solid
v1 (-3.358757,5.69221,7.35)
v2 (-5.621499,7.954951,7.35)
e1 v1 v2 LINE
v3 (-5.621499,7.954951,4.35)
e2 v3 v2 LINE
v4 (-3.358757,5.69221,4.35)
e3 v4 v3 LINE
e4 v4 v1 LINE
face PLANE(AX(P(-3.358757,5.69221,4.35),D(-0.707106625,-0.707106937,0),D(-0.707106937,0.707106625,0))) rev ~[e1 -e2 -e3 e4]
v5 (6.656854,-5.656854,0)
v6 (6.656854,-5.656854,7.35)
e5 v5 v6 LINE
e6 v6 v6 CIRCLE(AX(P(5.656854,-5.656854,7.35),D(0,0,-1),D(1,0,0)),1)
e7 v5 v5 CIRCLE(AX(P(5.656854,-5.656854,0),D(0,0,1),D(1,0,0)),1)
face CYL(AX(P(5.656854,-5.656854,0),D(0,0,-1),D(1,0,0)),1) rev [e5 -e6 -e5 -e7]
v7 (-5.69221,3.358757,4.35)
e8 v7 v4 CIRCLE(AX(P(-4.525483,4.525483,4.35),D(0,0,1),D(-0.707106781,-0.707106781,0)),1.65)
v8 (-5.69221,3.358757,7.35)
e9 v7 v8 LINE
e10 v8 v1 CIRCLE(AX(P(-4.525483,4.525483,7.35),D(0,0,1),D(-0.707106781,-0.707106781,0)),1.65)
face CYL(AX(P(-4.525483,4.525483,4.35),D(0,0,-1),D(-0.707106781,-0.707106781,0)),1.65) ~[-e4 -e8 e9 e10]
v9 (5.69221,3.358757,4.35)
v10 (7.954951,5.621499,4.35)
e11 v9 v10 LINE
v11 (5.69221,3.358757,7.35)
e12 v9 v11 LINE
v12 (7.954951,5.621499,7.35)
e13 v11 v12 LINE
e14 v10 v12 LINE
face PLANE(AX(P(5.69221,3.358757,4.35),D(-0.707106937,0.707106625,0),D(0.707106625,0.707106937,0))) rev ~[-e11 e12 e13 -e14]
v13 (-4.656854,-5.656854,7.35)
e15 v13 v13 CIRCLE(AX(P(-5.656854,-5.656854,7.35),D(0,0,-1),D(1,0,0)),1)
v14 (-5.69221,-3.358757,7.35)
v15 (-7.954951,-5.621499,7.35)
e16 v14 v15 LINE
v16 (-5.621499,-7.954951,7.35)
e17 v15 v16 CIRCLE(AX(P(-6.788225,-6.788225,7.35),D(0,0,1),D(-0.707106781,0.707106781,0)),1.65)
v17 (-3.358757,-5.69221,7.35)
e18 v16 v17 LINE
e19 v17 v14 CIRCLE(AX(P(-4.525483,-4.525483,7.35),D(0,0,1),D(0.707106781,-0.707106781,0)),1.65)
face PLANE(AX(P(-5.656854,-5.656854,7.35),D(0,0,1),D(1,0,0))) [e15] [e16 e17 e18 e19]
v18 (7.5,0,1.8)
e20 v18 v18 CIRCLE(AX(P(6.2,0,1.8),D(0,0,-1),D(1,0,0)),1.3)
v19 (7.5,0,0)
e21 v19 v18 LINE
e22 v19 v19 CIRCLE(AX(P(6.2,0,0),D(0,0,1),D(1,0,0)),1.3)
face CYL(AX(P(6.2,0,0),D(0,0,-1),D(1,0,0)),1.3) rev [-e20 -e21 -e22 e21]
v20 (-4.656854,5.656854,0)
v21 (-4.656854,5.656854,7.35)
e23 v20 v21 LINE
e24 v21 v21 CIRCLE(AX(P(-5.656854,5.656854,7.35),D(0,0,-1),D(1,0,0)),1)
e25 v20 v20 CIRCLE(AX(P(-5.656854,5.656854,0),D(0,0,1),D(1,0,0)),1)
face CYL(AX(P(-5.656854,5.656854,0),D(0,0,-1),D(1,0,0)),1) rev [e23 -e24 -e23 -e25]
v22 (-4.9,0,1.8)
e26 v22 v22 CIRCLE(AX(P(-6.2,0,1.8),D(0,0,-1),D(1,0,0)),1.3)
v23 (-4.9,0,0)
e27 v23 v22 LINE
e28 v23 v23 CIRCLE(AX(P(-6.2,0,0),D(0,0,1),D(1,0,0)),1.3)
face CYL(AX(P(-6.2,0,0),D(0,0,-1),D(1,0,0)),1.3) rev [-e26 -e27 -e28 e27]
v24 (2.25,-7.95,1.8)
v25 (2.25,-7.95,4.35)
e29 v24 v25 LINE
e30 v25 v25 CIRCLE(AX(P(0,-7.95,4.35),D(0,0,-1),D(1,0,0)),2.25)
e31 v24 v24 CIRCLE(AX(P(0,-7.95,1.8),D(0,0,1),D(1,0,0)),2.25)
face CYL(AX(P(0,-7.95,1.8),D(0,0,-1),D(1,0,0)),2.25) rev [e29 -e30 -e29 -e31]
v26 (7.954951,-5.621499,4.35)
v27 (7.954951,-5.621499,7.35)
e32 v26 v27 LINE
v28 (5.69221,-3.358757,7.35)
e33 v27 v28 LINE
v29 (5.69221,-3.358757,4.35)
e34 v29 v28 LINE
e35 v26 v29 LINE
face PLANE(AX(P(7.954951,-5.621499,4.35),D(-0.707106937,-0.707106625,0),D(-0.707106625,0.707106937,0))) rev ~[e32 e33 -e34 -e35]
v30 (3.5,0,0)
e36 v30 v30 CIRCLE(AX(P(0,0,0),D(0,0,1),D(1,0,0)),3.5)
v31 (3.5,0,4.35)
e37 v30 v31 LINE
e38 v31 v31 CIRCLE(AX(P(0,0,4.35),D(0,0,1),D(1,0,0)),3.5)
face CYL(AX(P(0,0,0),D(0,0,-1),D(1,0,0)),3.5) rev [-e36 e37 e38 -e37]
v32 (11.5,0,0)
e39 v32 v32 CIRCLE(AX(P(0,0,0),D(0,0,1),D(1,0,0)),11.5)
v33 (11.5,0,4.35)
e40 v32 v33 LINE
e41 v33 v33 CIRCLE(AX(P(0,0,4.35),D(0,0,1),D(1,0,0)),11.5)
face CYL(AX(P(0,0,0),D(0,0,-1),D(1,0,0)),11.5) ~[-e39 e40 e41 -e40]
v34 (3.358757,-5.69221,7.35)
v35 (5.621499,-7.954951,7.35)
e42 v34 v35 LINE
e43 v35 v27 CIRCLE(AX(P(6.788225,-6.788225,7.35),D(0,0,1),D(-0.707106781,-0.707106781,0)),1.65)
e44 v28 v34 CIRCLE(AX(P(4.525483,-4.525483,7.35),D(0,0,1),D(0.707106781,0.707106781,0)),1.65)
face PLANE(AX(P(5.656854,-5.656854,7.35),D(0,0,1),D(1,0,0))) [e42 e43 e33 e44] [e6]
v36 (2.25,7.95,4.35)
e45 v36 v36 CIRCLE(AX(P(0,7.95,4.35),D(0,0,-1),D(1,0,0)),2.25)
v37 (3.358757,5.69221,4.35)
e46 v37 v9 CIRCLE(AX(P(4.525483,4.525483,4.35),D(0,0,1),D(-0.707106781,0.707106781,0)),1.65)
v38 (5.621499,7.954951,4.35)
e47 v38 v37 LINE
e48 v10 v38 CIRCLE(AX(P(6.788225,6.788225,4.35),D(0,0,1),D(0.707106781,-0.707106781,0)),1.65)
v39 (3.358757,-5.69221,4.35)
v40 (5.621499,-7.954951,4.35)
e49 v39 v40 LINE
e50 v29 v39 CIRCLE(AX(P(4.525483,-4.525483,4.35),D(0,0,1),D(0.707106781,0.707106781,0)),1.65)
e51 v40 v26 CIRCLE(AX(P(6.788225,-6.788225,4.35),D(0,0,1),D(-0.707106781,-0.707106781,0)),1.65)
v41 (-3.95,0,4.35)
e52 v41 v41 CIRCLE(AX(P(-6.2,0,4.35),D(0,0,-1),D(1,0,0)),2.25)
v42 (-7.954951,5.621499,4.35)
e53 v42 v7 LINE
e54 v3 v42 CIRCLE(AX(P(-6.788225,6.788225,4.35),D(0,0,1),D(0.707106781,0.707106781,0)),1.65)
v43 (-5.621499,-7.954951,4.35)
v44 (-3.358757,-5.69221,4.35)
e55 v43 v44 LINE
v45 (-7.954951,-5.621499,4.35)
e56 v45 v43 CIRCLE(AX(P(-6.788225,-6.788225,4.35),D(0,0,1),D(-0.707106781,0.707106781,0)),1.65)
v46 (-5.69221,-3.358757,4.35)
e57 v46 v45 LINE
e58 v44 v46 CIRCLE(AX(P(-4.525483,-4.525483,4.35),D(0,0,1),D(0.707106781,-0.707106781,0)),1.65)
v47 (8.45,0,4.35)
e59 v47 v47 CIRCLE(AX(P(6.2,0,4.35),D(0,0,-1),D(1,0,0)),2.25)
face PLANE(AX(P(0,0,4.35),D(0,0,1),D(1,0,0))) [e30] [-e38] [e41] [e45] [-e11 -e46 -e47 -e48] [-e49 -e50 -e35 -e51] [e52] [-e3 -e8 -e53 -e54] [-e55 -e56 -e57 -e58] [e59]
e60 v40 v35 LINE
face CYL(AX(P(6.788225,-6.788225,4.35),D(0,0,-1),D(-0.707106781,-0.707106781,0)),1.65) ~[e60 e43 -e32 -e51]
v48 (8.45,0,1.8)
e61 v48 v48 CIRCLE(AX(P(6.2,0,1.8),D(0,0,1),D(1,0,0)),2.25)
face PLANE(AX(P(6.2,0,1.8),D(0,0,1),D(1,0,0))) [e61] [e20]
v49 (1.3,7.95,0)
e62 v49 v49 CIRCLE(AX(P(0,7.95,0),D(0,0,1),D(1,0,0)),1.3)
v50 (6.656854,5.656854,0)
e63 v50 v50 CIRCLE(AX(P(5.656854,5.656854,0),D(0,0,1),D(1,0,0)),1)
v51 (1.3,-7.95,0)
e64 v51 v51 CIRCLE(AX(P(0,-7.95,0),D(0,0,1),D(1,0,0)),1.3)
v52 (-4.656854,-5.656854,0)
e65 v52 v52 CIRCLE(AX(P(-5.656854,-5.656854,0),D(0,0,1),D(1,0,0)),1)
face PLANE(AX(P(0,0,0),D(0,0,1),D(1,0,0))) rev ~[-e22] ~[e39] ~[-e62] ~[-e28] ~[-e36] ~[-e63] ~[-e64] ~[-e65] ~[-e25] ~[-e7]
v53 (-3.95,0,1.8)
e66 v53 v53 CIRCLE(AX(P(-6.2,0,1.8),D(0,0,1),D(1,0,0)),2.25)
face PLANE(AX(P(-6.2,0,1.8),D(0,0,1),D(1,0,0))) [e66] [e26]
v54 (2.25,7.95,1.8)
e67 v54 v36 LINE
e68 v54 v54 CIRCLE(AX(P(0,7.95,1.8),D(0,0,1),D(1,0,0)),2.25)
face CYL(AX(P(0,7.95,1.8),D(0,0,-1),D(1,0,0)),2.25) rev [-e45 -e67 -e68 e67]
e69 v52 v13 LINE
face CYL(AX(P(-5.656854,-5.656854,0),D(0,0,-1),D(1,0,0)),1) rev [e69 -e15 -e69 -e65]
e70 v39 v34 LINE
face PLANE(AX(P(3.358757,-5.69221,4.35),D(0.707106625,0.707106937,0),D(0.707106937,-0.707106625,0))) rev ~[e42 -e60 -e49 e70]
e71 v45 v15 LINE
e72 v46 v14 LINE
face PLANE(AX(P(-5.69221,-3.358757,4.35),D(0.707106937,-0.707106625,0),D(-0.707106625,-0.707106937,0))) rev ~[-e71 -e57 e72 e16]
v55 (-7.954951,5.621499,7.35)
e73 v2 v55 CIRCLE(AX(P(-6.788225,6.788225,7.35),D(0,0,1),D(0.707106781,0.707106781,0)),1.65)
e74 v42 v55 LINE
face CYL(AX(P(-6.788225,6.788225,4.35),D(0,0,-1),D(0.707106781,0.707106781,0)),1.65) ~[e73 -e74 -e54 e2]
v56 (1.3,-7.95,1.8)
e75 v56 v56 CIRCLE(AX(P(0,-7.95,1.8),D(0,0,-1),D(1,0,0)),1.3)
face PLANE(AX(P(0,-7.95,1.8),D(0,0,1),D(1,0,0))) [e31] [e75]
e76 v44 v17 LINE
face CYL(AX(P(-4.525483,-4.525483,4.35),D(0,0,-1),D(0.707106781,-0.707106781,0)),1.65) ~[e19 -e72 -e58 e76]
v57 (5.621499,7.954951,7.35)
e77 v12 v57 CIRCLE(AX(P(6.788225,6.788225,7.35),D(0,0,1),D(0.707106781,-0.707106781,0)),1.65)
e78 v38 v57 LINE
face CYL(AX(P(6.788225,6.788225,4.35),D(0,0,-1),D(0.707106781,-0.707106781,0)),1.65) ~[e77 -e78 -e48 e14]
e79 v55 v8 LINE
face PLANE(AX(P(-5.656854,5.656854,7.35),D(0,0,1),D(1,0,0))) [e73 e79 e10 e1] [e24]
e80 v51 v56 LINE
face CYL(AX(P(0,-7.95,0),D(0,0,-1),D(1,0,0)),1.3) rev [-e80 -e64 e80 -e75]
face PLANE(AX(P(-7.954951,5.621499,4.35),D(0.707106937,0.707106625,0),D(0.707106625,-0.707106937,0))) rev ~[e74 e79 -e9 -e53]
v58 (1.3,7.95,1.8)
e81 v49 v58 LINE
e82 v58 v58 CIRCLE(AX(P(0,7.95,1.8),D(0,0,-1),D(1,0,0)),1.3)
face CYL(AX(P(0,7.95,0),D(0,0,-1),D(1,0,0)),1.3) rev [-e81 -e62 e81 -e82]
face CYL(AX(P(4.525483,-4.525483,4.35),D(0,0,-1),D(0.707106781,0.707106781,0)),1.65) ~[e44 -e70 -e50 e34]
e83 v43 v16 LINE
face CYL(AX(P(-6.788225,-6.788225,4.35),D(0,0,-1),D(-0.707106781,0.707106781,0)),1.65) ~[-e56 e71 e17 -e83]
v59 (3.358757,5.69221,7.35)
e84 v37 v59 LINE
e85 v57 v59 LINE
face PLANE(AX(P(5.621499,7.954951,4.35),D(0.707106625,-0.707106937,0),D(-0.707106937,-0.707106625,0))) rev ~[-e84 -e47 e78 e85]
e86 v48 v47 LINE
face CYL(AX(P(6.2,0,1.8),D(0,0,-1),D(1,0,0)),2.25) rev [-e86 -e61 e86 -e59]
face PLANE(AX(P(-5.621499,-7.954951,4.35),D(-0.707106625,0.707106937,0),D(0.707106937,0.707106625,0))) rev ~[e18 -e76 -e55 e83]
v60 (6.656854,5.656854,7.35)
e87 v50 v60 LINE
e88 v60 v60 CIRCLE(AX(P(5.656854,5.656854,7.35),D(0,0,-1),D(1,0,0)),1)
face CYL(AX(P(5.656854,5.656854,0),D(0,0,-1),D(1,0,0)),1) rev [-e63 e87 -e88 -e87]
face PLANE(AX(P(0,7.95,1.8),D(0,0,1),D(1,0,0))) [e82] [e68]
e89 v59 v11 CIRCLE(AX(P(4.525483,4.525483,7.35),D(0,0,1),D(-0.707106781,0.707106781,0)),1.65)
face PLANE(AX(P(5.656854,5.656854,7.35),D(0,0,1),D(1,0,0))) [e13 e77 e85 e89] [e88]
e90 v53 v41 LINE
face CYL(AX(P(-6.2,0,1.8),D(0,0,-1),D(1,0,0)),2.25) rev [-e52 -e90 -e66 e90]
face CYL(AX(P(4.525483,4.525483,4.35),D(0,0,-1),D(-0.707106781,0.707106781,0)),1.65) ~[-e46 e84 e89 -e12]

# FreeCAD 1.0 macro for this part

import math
import FreeCAD as App
import Part
import Sketcher

doc = App.newDocument("Part")
body = doc.addObject("PartDesign::Body", "Body")

# Sketch on XY plane
sketch1 = body.newObject("Sketcher::SketchObject", "Sketch")
sketch1.AttachmentSupport = (doc.getObject("XY_Plane"), [""])
sketch1.MapMode = "FlatFace"
sketch1.addGeometry([
    Part.Circle(App.Vector(0, 0, 0), App.Vector(0, 0, 1), 11.5),  # 0
    Part.Circle(App.Vector(0, -8, 0), App.Vector(0, 0, 1), 1.3),  # 1
    Part.Circle(App.Vector(-6.2, 0, 0), App.Vector(0, 0, 1), 1.3),  # 2
    Part.Circle(App.Vector(0, 0, 0), App.Vector(0, 0, 1), 3.5),  # 3
    Part.Circle(App.Vector(6.2, 0, 0), App.Vector(0, 0, 1), 1.3),  # 4
    Part.Circle(App.Vector(0, 8, 0), App.Vector(0, 0, 1), 1.3),  # 5
], False)
sketch1.addConstraint([
    Sketcher.Constraint("Coincident", 0, 3, -1, 1),
    Sketcher.Constraint("Coincident", 3, 3, -1, 1),
    Sketcher.Constraint("Equal", 1, 2),
    Sketcher.Constraint("Equal", 2, 4),
    Sketcher.Constraint("Equal", 4, 5),
    Sketcher.Constraint("Symmetric", 2, 3, 4, 3, -1, 1),
    Sketcher.Constraint("Symmetric", 1, 3, 5, 3, -1, 1),
    Sketcher.Constraint("PointOnObject", 1, 3, -2),
    Sketcher.Constraint("PointOnObject", 2, 3, -1),
    Sketcher.Constraint("Diameter", 0, 23.0),
    Sketcher.Constraint("Diameter", 3, 7.0),
    Sketcher.Constraint("Diameter", 1, 2.6),
    Sketcher.Constraint("DistanceX", 2, 3, -1, 1, 6.2),
    Sketcher.Constraint("DistanceY", 1, 3, 5, 3, 15.9),
])
pad1 = body.newObject("PartDesign::Pad", "Pad")
pad1.Profile = sketch1
pad1.Length = 4.35

# Sketch on XY plane
sketch2 = body.newObject("Sketcher::SketchObject", "Sketch001")
sketch2.AttachmentSupport = (doc.getObject("XY_Plane"), [""])
sketch2.MapMode = "FlatFace"
sketch2.AttachmentOffset = App.Placement(App.Vector(0, 0, 4.35), App.Rotation())
sketch2.addGeometry([
    Part.ArcOfCircle(Part.Circle(App.Vector(4.5, -4.5, 0), App.Vector(0, 0, 1), 1.7), math.radians(45), math.radians(225)),  # 0
    Part.LineSegment(App.Vector(3.4, -5.7, 0), App.Vector(5.6, -8, 0)),  # 1
    Part.ArcOfCircle(Part.Circle(App.Vector(6.8, -6.8, 0), App.Vector(0, 0, 1), 1.6), math.radians(-135), math.radians(45)),  # 2
    Part.LineSegment(App.Vector(8, -5.6, 0), App.Vector(5.7, -3.4, 0)),  # 3
    Part.ArcOfCircle(Part.Circle(App.Vector(4.5, 4.5, 0), App.Vector(0, 0, 1), 1.7), math.radians(135), math.radians(315)),  # 4
    Part.LineSegment(App.Vector(5.7, 3.4, 0), App.Vector(8, 5.6, 0)),  # 5
    Part.ArcOfCircle(Part.Circle(App.Vector(6.8, 6.8, 0), App.Vector(0, 0, 1), 1.6), math.radians(-45), math.radians(135)),  # 6
    Part.LineSegment(App.Vector(5.6, 8, 0), App.Vector(3.4, 5.7, 0)),  # 7
    Part.ArcOfCircle(Part.Circle(App.Vector(-4.5, 4.5, 0), App.Vector(0, 0, 1), 1.7), math.radians(-135), math.radians(45)),  # 8
    Part.LineSegment(App.Vector(-3.4, 5.7, 0), App.Vector(-5.6, 8, 0)),  # 9
    Part.ArcOfCircle(Part.Circle(App.Vector(-6.8, 6.8, 0), App.Vector(0, 0, 1), 1.6), math.radians(45), math.radians(225)),  # 10
    Part.LineSegment(App.Vector(-8, 5.6, 0), App.Vector(-5.7, 3.4, 0)),  # 11
    Part.ArcOfCircle(Part.Circle(App.Vector(-4.5, -4.5, 0), App.Vector(0, 0, 1), 1.7), math.radians(-45), math.radians(135)),  # 12
    Part.LineSegment(App.Vector(-5.7, -3.4, 0), App.Vector(-8, -5.6, 0)),  # 13
    Part.ArcOfCircle(Part.Circle(App.Vector(-6.8, -6.8, 0), App.Vector(0, 0, 1), 1.6), math.radians(135), math.radians(315)),  # 14
    Part.LineSegment(App.Vector(-5.6, -8, 0), App.Vector(-3.4, -5.7, 0)),  # 15
], False)
sketch2.addConstraint([
    Sketcher.Constraint("Tangent", 0, 2, 1, 1),
    Sketcher.Constraint("Tangent", 1, 2, 2, 1),
    Sketcher.Constraint("Tangent", 2, 2, 3, 1),
    Sketcher.Constraint("Tangent", 3, 2, 0, 1),
    Sketcher.Constraint("Tangent", 4, 2, 5, 1),
    Sketcher.Constraint("Tangent", 5, 2, 6, 1),
    Sketcher.Constraint("Tangent", 6, 2, 7, 1),
    Sketcher.Constraint("Tangent", 7, 2, 4, 1),
    Sketcher.Constraint("Tangent", 8, 2, 9, 1),
    Sketcher.Constraint("Tangent", 9, 2, 10, 1),
    Sketcher.Constraint("Tangent", 10, 2, 11, 1),
    Sketcher.Constraint("Tangent", 11, 2, 8, 1),
    Sketcher.Constraint("Tangent", 12, 2, 13, 1),
    Sketcher.Constraint("Tangent", 13, 2, 14, 1),
    Sketcher.Constraint("Tangent", 14, 2, 15, 1),
    Sketcher.Constraint("Tangent", 15, 2, 12, 1),
    Sketcher.Constraint("Equal", 0, 2),
    Sketcher.Constraint("Equal", 2, 4),
    Sketcher.Constraint("Equal", 4, 6),
    Sketcher.Constraint("Equal", 6, 8),
    Sketcher.Constraint("Equal", 8, 10),
    Sketcher.Constraint("Equal", 10, 12),
    Sketcher.Constraint("Equal", 12, 14),
    Sketcher.Constraint("Symmetric", 0, 3, 8, 3, -1, 1),
    Sketcher.Constraint("Symmetric", 2, 3, 10, 3, -1, 1),
    Sketcher.Constraint("Symmetric", 4, 3, 12, 3, -1, 1),
    Sketcher.Constraint("Symmetric", 6, 3, 14, 3, -1, 1),
    Sketcher.Constraint("Symmetric", 4, 3, 8, 3, -2),
    Sketcher.Constraint("Symmetric", 6, 3, 10, 3, -2),
    Sketcher.Constraint("Perpendicular", 3, 5),
    Sketcher.Constraint("Radius", 0, 1.65),
    Sketcher.Constraint("Distance", 1, 3.2),
    Sketcher.Constraint("DistanceX", -1, 1, 1, 2, 5.621499),
    Sketcher.Constraint("DistanceY", 2, 2, -1, 1, 5.621499),
])
pad2 = body.newObject("PartDesign::Pad", "Pad001")
pad2.Profile = sketch2
pad2.Length = 3

# Sketch on XY plane
sketch3 = body.newObject("Sketcher::SketchObject", "Sketch002")
sketch3.AttachmentSupport = (doc.getObject("XY_Plane"), [""])
sketch3.MapMode = "FlatFace"
sketch3.AttachmentOffset = App.Placement(App.Vector(0, 0, 1.8), App.Rotation())
sketch3.addGeometry([
    Part.Circle(App.Vector(0, -8, 0), App.Vector(0, 0, 1), 2.2),
    Part.Circle(App.Vector(6.2, 0, 0), App.Vector(0, 0, 1), 2.2),
    Part.Circle(App.Vector(0, 8, 0), App.Vector(0, 0, 1), 2.2),
    Part.Circle(App.Vector(-6.2, 0, 0), App.Vector(0, 0, 1), 2.2),
], False)
sketch3.addConstraint([
    Sketcher.Constraint("Equal", 0, 1),
    Sketcher.Constraint("Equal", 1, 2),
    Sketcher.Constraint("Equal", 2, 3),
    Sketcher.Constraint("Symmetric", 0, 3, 2, 3, -1, 1),
    Sketcher.Constraint("Symmetric", 1, 3, 3, 3, -1, 1),
    Sketcher.Constraint("PointOnObject", 0, 3, -2),
    Sketcher.Constraint("PointOnObject", 1, 3, -1),
    Sketcher.Constraint("Diameter", 0, 4.5),
    Sketcher.Constraint("DistanceX", -1, 1, 1, 3, 6.2),
    Sketcher.Constraint("DistanceY", 0, 3, 2, 3, 15.9),
])
pocket1 = body.newObject("PartDesign::Pocket", "Pocket")
pocket1.Profile = sketch3
pocket1.Length = 2.6
pocket1.Reversed = True

# Sketch on XY plane
sketch4 = body.newObject("Sketcher::SketchObject", "Sketch003")
sketch4.AttachmentSupport = (doc.getObject("XY_Plane"), [""])
sketch4.MapMode = "FlatFace"
sketch4.addGeometry([
    Part.Circle(App.Vector(5.7, -5.7, 0), App.Vector(0, 0, 1), 1),
    Part.Circle(App.Vector(5.7, 5.7, 0), App.Vector(0, 0, 1), 1),
    Part.Circle(App.Vector(-5.7, 5.7, 0), App.Vector(0, 0, 1), 1),
    Part.Circle(App.Vector(-5.7, -5.7, 0), App.Vector(0, 0, 1), 1),
], False)
sketch4.addConstraint([
    Sketcher.Constraint("Equal", 0, 1),
    Sketcher.Constraint("Equal", 1, 2),
    Sketcher.Constraint("Equal", 2, 3),
    Sketcher.Constraint("Symmetric", 0, 3, 2, 3, -1, 1),
    Sketcher.Constraint("Symmetric", 1, 3, 3, 3, -1, 1),
    Sketcher.Constraint("Symmetric", 1, 3, 2, 3, -2),
    Sketcher.Constraint("Diameter", 0, 2.0),
    Sketcher.Constraint("DistanceX", -1, 1, 0, 3, 5.656854),
    Sketcher.Constraint("DistanceY", 0, 3, -1, 1, 5.656854),
])
pocket2 = body.newObject("PartDesign::Pocket", "Pocket001")
pocket2.Profile = sketch4
pocket2.Length = 8
pocket2.Reversed = True

doc.recompute()
